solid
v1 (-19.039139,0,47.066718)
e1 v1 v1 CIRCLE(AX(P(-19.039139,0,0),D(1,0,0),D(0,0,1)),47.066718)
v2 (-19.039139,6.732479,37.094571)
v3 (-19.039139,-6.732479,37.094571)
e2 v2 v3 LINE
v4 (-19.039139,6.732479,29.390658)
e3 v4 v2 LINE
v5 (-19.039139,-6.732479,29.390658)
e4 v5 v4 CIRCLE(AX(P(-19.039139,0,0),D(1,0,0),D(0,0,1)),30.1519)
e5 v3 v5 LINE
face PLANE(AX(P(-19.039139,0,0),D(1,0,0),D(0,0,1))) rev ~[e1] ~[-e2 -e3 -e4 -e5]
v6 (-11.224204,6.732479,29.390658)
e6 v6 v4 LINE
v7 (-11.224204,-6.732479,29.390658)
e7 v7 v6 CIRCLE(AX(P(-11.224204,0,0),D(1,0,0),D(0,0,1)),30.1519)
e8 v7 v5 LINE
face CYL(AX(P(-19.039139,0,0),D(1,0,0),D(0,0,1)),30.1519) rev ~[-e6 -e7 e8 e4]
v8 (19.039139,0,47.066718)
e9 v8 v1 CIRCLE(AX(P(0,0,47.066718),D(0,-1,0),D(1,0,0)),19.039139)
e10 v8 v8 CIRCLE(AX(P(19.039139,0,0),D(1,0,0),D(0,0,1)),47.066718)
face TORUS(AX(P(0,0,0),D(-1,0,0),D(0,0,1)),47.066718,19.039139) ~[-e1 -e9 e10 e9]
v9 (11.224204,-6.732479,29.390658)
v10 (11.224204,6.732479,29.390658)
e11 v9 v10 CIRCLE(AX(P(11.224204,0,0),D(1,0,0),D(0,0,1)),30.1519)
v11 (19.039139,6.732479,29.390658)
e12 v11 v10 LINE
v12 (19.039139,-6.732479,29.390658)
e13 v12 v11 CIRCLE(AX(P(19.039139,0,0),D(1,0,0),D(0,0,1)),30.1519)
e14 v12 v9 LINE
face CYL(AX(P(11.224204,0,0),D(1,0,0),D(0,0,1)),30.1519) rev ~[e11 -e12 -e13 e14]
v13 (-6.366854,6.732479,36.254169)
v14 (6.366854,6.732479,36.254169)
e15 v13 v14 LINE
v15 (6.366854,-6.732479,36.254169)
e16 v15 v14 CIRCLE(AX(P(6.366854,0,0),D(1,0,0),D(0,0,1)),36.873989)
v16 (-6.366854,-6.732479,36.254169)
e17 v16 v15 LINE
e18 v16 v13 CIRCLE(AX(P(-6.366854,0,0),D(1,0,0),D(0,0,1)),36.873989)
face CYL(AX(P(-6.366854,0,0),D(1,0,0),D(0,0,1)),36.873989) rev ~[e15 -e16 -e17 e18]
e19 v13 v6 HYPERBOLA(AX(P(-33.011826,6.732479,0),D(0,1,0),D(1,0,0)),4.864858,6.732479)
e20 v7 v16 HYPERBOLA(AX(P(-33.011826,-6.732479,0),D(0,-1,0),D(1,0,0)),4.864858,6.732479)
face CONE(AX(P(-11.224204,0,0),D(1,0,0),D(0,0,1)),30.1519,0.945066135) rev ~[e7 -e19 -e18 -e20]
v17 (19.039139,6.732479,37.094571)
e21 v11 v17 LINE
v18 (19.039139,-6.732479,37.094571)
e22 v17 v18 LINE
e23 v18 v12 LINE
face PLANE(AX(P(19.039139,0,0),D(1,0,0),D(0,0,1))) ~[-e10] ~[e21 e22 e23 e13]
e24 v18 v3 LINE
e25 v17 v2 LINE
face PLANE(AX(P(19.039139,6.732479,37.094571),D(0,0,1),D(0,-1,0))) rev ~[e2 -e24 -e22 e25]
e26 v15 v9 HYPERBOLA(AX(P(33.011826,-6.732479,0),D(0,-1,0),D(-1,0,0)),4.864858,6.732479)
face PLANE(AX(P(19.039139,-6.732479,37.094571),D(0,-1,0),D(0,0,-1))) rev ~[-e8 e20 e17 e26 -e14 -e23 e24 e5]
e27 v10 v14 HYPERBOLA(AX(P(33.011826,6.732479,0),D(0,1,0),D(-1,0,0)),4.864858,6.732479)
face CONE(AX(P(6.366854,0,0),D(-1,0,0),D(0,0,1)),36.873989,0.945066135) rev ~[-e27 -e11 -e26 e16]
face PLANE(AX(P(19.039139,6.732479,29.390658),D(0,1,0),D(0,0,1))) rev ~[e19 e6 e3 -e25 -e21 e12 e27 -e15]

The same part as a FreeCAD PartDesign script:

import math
import FreeCAD as App
import Part
import Sketcher

doc = App.newDocument("Part")
body = doc.addObject("PartDesign::Body", "Body")

sketch1 = body.newObject("Sketcher::SketchObject", "Sketch")
sketch1.AttachmentSupport = (doc.getObject("XZ_Plane"), [""])
sketch1.MapMode = "FlatFace"
sketch1.addGeometry(Part.LineSegment(App.Vector(11, 30, 0), App.Vector(19, 30, 0)), False)
sketch1.addGeometry(Part.LineSegment(App.Vector(19, 30, 0), App.Vector(19, 47, 0)), False)
sketch1.addGeometry(Part.ArcOfCircle(Part.Circle(App.Vector(0, 47, 0), App.Vector(0, 0, 1), 19), math.radians(0), math.radians(180)), False)
sketch1.addGeometry(Part.LineSegment(App.Vector(-19, 47, 0), App.Vector(-19, 30, 0)), False)
sketch1.addGeometry(Part.LineSegment(App.Vector(-19, 30, 0), App.Vector(-11, 30, 0)), False)
sketch1.addGeometry(Part.LineSegment(App.Vector(-11, 30, 0), App.Vector(-6, 37, 0)), False)
sketch1.addGeometry(Part.LineSegment(App.Vector(-6, 37, 0), App.Vector(6, 37, 0)), False)
sketch1.addGeometry(Part.LineSegment(App.Vector(6, 37, 0), App.Vector(11, 30, 0)), False)
sketch1.addConstraint(Sketcher.Constraint("Coincident", 0, 2, 1, 1))
sketch1.addConstraint(Sketcher.Constraint("Tangent", 1, 2, 2, 1))
sketch1.addConstraint(Sketcher.Constraint("Tangent", 2, 2, 3, 1))
sketch1.addConstraint(Sketcher.Constraint("Coincident", 3, 2, 4, 1))
sketch1.addConstraint(Sketcher.Constraint("Coincident", 4, 2, 5, 1))
sketch1.addConstraint(Sketcher.Constraint("Coincident", 5, 2, 6, 1))
sketch1.addConstraint(Sketcher.Constraint("Coincident", 6, 2, 7, 1))
sketch1.addConstraint(Sketcher.Constraint("Coincident", 7, 2, 0, 1))
sketch1.addConstraint(Sketcher.Constraint("Horizontal", 0))
sketch1.addConstraint(Sketcher.Constraint("Vertical", 1))
sketch1.addConstraint(Sketcher.Constraint("Vertical", 3))
sketch1.addConstraint(Sketcher.Constraint("Horizontal", 4))
sketch1.addConstraint(Sketcher.Constraint("Horizontal", 6))
sketch1.addConstraint(Sketcher.Constraint("Symmetric", 0, 2, 3, 2, -2))
sketch1.addConstraint(Sketcher.Constraint("Equal", 0, 4))
sketch1.addConstraint(Sketcher.Constraint("Equal", 5, 7))
sketch1.addConstraint(Sketcher.Constraint("Radius", 2, 19.039139))
sketch1.addConstraint(Sketcher.Constraint("DistanceY", 1, 1, 1, 2, 16.914818))
sketch1.addConstraint(Sketcher.Constraint("DistanceY", -1, 1, 0, 2, 30.1519))
sketch1.addConstraint(Sketcher.Constraint("Distance", 5, 8.293391))
sketch1.addConstraint(Sketcher.Constraint("DistanceX", 0, 1, 0, 2, 7.814935))
sketch1.addConstraint(Sketcher.Constraint("DistanceX", 6, 1, 6, 2, 12.733708))
revolution = body.newObject("PartDesign::Revolution", "Revolution")
revolution.Profile = sketch1
revolution.ReferenceAxis = (sketch1, ["H_Axis"])
revolution.Angle = 360

sketch2 = body.newObject("Sketcher::SketchObject", "Sketch001")
sketch2.AttachmentSupport = (doc.getObject("YZ_Plane"), [""])
sketch2.MapMode = "FlatFace"
sketch2.AttachmentOffset = App.Placement(App.Vector(0, 0, 19.039139), App.Rotation())
sketch2.addGeometry(Part.LineSegment(App.Vector(-7, 37, 0), App.Vector(-7, 29, 0)), False)
sketch2.addGeometry(Part.ArcOfCircle(Part.Circle(App.Vector(0, 0, 0), App.Vector(0, 0, 1), 30), math.radians(77), math.radians(103)), False)
sketch2.addGeometry(Part.LineSegment(App.Vector(7, 29, 0), App.Vector(7, 37, 0)), False)
sketch2.addGeometry(Part.LineSegment(App.Vector(7, 37, 0), App.Vector(-7, 37, 0)), False)
sketch2.addConstraint(Sketcher.Constraint("Coincident", 0, 2, 1, 2))
sketch2.addConstraint(Sketcher.Constraint("Coincident", 1, 1, 2, 1))
sketch2.addConstraint(Sketcher.Constraint("Coincident", 2, 2, 3, 1))
sketch2.addConstraint(Sketcher.Constraint("Coincident", 3, 2, 0, 1))
sketch2.addConstraint(Sketcher.Constraint("Vertical", 0))
sketch2.addConstraint(Sketcher.Constraint("Vertical", 2))
sketch2.addConstraint(Sketcher.Constraint("Horizontal", 3))
sketch2.addConstraint(Sketcher.Constraint("Symmetric", 0, 2, 1, 1, -2))
sketch2.addConstraint(Sketcher.Constraint("Radius", 1, 30.151885))
sketch2.addConstraint(Sketcher.Constraint("DistanceX", 3, 2, 3, 1, 13.464958))
sketch2.addConstraint(Sketcher.Constraint("DistanceY", 0, 2, 0, 1, 7.703913))
sketch2.addConstraint(Sketcher.Constraint("DistanceY", -1, 1, 2, 2, 37.094571))
pocket1 = body.newObject("PartDesign::Pocket", "Pocket")
pocket1.Profile = sketch2
pocket1.Type = "ThroughAll"

doc.recompute()
